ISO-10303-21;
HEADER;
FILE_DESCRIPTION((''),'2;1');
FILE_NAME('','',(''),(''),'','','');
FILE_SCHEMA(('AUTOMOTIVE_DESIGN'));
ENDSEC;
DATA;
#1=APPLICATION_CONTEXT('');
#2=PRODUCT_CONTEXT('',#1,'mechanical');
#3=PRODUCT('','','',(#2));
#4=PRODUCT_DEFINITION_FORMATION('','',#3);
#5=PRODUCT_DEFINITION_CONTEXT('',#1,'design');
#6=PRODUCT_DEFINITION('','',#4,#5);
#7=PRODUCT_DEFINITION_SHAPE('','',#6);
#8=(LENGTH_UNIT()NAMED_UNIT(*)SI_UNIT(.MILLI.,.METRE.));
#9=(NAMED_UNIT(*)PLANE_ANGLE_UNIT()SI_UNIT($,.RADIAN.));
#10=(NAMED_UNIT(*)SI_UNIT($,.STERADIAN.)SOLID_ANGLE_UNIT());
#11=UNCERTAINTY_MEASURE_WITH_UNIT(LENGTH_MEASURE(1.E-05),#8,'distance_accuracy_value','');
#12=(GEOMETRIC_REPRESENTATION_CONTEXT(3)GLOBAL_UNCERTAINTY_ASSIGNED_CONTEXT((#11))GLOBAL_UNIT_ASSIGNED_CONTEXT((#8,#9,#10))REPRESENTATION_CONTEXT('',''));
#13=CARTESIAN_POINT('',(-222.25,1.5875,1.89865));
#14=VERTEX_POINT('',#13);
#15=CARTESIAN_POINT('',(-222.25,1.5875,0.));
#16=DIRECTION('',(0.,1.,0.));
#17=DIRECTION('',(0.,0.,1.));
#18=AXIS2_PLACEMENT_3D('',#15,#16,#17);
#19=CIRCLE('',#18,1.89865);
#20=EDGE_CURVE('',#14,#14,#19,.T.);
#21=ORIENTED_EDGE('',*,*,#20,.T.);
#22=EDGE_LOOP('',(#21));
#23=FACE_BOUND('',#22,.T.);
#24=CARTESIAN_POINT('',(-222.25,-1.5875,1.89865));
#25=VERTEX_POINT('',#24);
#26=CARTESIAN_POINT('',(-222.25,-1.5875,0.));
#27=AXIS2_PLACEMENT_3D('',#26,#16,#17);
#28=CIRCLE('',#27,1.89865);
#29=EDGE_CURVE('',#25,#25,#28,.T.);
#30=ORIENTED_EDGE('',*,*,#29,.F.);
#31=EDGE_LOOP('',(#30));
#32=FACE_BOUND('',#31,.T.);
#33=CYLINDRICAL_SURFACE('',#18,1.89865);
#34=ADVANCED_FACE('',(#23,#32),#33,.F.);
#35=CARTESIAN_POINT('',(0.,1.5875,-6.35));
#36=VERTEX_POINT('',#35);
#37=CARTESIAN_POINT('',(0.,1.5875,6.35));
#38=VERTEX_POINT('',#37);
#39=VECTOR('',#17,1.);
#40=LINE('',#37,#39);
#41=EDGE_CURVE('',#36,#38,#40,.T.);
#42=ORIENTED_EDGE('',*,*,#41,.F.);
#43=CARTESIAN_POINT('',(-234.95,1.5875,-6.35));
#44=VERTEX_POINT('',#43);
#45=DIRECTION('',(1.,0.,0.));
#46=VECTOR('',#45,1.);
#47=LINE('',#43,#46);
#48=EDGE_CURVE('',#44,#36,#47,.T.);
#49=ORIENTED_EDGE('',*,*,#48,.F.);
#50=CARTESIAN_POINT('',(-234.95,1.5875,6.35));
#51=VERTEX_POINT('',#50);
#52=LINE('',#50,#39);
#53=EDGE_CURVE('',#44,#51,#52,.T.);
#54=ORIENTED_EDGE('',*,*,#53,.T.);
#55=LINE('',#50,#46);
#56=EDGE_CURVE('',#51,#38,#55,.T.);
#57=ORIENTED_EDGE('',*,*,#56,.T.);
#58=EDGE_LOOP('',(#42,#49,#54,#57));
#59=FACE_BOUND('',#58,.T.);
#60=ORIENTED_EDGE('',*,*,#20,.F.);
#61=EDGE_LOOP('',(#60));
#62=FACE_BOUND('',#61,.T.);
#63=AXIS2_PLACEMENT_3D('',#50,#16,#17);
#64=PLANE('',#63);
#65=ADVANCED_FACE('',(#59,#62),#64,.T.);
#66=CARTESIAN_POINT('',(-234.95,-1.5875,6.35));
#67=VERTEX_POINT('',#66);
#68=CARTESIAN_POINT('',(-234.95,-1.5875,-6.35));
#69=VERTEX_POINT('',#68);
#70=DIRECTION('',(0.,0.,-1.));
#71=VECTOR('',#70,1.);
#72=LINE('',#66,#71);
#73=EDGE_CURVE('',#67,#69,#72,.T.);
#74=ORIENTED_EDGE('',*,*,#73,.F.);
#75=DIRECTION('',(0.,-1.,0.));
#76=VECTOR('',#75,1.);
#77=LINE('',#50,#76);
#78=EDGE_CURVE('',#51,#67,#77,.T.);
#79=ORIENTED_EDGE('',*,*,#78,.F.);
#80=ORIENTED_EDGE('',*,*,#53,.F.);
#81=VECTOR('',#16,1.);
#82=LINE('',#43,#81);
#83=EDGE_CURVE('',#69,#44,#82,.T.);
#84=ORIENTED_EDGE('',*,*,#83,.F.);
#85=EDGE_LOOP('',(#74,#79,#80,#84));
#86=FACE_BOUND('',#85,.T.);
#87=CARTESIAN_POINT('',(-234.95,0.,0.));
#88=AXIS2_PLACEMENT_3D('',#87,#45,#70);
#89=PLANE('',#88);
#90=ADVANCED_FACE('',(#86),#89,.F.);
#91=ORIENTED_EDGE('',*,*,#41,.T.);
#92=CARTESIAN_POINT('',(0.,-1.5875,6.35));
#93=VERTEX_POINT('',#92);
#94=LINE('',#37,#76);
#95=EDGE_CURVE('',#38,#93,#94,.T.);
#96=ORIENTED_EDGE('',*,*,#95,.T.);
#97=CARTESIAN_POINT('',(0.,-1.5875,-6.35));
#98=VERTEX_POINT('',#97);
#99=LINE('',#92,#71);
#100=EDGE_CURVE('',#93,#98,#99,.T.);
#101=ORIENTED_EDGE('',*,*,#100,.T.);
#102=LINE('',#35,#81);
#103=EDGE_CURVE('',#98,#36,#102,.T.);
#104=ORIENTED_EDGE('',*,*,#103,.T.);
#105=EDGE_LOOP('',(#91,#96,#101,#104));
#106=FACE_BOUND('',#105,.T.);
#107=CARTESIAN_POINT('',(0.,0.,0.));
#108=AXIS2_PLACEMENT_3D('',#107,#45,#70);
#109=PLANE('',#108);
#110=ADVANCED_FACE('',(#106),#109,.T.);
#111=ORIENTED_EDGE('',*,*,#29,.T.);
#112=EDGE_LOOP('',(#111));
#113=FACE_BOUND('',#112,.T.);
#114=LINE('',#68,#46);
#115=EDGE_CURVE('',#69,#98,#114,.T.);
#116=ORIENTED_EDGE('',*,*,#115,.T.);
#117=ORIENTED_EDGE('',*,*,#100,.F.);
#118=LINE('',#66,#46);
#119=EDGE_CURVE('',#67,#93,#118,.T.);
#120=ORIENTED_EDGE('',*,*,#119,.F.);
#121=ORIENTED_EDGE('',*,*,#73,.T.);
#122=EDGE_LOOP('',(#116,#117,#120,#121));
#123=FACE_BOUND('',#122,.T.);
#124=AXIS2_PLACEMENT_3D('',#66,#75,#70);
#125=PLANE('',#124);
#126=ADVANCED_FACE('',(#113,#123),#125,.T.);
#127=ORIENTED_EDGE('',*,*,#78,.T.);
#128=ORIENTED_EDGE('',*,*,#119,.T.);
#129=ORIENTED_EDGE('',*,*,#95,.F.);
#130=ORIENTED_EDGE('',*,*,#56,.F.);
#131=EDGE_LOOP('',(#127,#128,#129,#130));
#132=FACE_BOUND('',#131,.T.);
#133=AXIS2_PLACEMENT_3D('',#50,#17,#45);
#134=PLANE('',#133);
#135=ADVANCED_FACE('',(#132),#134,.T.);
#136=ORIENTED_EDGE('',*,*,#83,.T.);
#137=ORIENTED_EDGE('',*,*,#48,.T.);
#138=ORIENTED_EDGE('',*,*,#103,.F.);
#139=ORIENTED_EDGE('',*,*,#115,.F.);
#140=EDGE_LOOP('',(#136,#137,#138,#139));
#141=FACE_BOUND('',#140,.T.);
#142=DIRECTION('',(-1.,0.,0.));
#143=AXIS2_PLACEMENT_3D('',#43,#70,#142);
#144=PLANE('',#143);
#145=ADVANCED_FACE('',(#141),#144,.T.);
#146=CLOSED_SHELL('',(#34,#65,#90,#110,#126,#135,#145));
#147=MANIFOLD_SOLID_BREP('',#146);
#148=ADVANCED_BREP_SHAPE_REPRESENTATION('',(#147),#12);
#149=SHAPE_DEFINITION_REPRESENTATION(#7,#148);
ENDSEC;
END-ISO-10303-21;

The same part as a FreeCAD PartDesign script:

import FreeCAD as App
import Part
import Sketcher
from FreeCAD import Vector
Q = App.Units.Quantity

doc = App.newDocument("Part")
body = doc.addObject("PartDesign::Body", "Body")

# Sketch on YZ plane
sketch1 = body.newObject("Sketcher::SketchObject", "Sketch")
sketch1.AttachmentSupport = (doc.getObject("YZ_Plane"), [""])
sketch1.MapMode = "FlatFace"
sketch1.addGeometry([
    Part.LineSegment(Vector(1.5875, 6.35, 0), Vector(-1.5875, 6.35, 0)),
    Part.LineSegment(Vector(-1.5875, 6.35, 0), Vector(-1.5875, -6.35, 0)),
    Part.LineSegment(Vector(-1.5875, -6.35, 0), Vector(1.5875, -6.35, 0)),
    Part.LineSegment(Vector(1.5875, -6.35, 0), Vector(1.5875, 6.35, 0)),
], False)
sketch1.addConstraint([
    Sketcher.Constraint("Coincident", 0, 2, 1, 1),
    Sketcher.Constraint("Coincident", 1, 2, 2, 1),
    Sketcher.Constraint("Coincident", 2, 2, 3, 1),
    Sketcher.Constraint("Coincident", 3, 2, 0, 1),
    Sketcher.Constraint("Horizontal", 0),
    Sketcher.Constraint("Vertical", 1),
    Sketcher.Constraint("Horizontal", 2),
    Sketcher.Constraint("Vertical", 3),
    Sketcher.Constraint("Symmetric", 0, 2, 2, 2, -1, 1),
    Sketcher.Constraint("DistanceY", 1, 2, 1, 1, Q("0.5 in")),
    Sketcher.Constraint("DistanceX", 0, 2, 0, 1, Q("0.125 in")),
])
pad1 = body.newObject("PartDesign::Pad", "Pad")
pad1.Profile = sketch1
pad1.Length = Q("9.25 in")
pad1.Reversed = True

# Sketch on XZ plane
sketch2 = body.newObject("Sketcher::SketchObject", "Sketch001")
sketch2.AttachmentSupport = (doc.getObject("XZ_Plane"), [""])
sketch2.MapMode = "FlatFace"
sketch2.AttachmentOffset = App.Placement(Vector(0, 0, -0.0625 * 25.4), App.Rotation())
sketch2.addGeometry(Part.Circle(Vector(-222.25, 0, 0), Vector(0, 0, 1), 1.89865), False)
sketch2.addConstraint([
    Sketcher.Constraint("PointOnObject", 0, 3, -1),
    Sketcher.Constraint("Diameter", 0, Q("0.1495 in")),
    Sketcher.Constraint("DistanceX", 0, 3, -1, 1, Q("8.75 in")),
])
doc.recompute()
hole = body.newObject("PartDesign::Hole", "Hole")
hole.Profile = sketch2
hole.ThreadType = "None"
hole.Diameter = Q("0.1495 in")
hole.DepthType = "ThroughAll"
hole.Reversed = True

doc.recompute()
